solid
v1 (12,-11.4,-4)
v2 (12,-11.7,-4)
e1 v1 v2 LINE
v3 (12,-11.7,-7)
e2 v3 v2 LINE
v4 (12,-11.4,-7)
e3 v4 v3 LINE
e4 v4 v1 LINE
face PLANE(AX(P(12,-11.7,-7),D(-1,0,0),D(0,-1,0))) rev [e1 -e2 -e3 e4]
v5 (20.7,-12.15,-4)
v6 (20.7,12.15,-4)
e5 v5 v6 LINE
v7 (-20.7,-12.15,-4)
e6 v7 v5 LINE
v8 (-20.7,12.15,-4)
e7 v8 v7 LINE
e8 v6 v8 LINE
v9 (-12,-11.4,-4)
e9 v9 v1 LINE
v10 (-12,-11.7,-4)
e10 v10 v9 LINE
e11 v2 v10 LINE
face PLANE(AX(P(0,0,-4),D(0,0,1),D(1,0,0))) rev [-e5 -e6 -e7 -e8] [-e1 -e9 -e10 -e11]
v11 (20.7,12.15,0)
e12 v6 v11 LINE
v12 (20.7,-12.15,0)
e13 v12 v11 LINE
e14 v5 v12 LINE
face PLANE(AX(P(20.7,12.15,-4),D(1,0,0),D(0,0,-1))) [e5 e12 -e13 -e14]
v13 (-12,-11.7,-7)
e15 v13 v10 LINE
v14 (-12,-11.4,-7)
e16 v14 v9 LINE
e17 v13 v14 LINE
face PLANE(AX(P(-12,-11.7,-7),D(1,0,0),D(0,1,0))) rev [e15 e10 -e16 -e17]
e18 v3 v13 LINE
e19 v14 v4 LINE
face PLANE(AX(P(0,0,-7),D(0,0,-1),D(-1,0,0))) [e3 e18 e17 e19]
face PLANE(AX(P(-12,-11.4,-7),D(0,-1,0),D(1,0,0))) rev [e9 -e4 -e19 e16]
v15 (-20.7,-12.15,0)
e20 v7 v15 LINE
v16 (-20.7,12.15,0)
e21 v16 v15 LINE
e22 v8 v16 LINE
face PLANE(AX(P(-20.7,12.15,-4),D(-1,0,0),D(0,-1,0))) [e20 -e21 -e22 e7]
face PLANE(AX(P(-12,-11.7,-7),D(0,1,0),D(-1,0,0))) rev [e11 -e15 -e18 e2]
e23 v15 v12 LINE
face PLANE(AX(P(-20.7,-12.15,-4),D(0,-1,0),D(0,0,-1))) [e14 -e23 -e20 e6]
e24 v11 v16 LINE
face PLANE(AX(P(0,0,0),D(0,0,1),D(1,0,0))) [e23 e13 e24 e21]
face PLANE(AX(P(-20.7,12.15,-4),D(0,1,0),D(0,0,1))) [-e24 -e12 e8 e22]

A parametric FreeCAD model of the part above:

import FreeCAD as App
import Part
import Sketcher
from FreeCAD import Vector


def add_polygon(sketch, points):
    """Adds a closed chain of lines whose ends are joined by coincident constraints."""
    first, n = sketch.GeometryCount, len(points)
    for a, b in zip(points, points[1:] + points[:1]):
        sketch.addGeometry(Part.LineSegment(App.Vector(*a, 0), App.Vector(*b, 0)), False)
    for i in range(n):
        sketch.addConstraint(Sketcher.Constraint("Coincident", first + i, 2, first + (i + 1) % n, 1))

doc = App.newDocument("Part")
body = doc.addObject("PartDesign::Body", "Body")

sketch1 = doc.addObject("Sketcher::SketchObject", "Sketch")
body.addObject(sketch1)
sketch1.AttachmentSupport = (doc.XY_Plane, [""])
sketch1.MapMode = "FlatFace"
add_polygon(sketch1, [(-21, 12), (-21, -12), (21, -12), (21, 12)])
sketch1.addConstraint(Sketcher.Constraint("Vertical", 0))
sketch1.addConstraint(Sketcher.Constraint("Horizontal", 1))
sketch1.addConstraint(Sketcher.Constraint("Vertical", 2))
sketch1.addConstraint(Sketcher.Constraint("Horizontal", 3))
sketch1.addConstraint(Sketcher.Constraint("Symmetric", 0, 2, 2, 2, -1, 1))
sketch1.addConstraint(Sketcher.Constraint("DistanceX", 1, 1, 1, 2, 41.4))
sketch1.addConstraint(Sketcher.Constraint("DistanceY", 0, 2, 0, 1, 24.3))
pad1 = doc.addObject("PartDesign::Pad", "Pad")
body.addObject(pad1)
pad1.Profile = sketch1
pad1.Length = 4
pad1.Reversed = True

sketch2 = doc.addObject("Sketcher::SketchObject", "Sketch001")
body.addObject(sketch2)
sketch2.AttachmentSupport = (doc.XY_Plane, [""])
sketch2.MapMode = "FlatFace"
sketch2.AttachmentOffset = App.Placement(Vector(0, 0, -4), App.Rotation())
add_polygon(sketch2, [(12, -11.4), (12, -11.7), (-12, -11.7), (-12, -11.4)])
sketch2.addConstraint(Sketcher.Constraint("Vertical", 0))
sketch2.addConstraint(Sketcher.Constraint("Horizontal", 1))
sketch2.addConstraint(Sketcher.Constraint("Vertical", 2))
sketch2.addConstraint(Sketcher.Constraint("Horizontal", 3))
sketch2.addConstraint(Sketcher.Constraint("DistanceX", 1, 2, 1, 1, 24.0))
sketch2.addConstraint(Sketcher.Constraint("DistanceY", 0, 2, 0, 1, 0.3))
sketch2.addConstraint(Sketcher.Constraint("DistanceX", -1, 1, 0, 2, 12.0))
sketch2.addConstraint(Sketcher.Constraint("DistanceY", 0, 2, -1, 1, 11.7))
pad2 = doc.addObject("PartDesign::Pad", "Pad001")
body.addObject(pad2)
pad2.Profile = sketch2
pad2.Length = 3
pad2.Reversed = True

doc.recompute()
